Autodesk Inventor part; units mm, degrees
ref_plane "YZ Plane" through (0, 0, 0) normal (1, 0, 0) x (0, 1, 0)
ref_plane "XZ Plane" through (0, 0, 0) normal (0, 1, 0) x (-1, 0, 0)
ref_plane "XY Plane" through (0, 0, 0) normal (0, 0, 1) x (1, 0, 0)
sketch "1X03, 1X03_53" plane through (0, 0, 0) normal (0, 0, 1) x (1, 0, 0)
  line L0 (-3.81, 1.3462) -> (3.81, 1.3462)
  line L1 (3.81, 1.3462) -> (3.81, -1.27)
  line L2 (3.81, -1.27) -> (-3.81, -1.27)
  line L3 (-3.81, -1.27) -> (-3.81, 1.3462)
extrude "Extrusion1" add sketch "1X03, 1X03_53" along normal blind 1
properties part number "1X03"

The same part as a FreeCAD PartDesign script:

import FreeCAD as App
import Part
import Sketcher

V = App.Vector
Q = App.Units.Quantity


def add_polygon(sketch, points):
    """Adds a closed chain of lines whose ends are joined by coincident constraints."""
    first, n = sketch.GeometryCount, len(points)
    for a, b in zip(points, points[1:] + points[:1]):
        sketch.addGeometry(Part.LineSegment(App.Vector(*a, 0), App.Vector(*b, 0)), False)
    for i in range(n):
        sketch.addConstraint(Sketcher.Constraint("Coincident", first + i, 2, first + (i + 1) % n, 1))

doc = App.newDocument("Part")
body = doc.addObject("PartDesign::Body", "Body")

# Sketch on XY plane
sketch1 = body.newObject("Sketcher::SketchObject", "Sketch")
sketch1.AttachmentSupport = (doc.getObject("XY_Plane"), [""])
sketch1.MapMode = "FlatFace"
add_polygon(sketch1, [(3.8, 1.3), (-3.8, 1.3), (-3.8, -1.3), (3.8, -1.3)])  # lines 0-3
sketch1.addConstraint([
    Sketcher.Constraint("Horizontal", 0),
    Sketcher.Constraint("Vertical", 1),
    Sketcher.Constraint("Horizontal", 2),
    Sketcher.Constraint("Vertical", 3),
    Sketcher.Constraint("DistanceX", 0, 2, 0, 1, Q("0.3 in")),
    Sketcher.Constraint("DistanceY", 1, 2, 1, 1, Q("0.103 in")),
    Sketcher.Constraint("DistanceX", 0, 2, -1, 1, Q("0.15 in")),
    Sketcher.Constraint("DistanceY", 1, 2, -1, 1, Q("0.05 in")),
])
pad1 = body.newObject("PartDesign::Pad", "Pad")
pad1.Profile = sketch1
pad1.Length = 1

doc.recompute()
